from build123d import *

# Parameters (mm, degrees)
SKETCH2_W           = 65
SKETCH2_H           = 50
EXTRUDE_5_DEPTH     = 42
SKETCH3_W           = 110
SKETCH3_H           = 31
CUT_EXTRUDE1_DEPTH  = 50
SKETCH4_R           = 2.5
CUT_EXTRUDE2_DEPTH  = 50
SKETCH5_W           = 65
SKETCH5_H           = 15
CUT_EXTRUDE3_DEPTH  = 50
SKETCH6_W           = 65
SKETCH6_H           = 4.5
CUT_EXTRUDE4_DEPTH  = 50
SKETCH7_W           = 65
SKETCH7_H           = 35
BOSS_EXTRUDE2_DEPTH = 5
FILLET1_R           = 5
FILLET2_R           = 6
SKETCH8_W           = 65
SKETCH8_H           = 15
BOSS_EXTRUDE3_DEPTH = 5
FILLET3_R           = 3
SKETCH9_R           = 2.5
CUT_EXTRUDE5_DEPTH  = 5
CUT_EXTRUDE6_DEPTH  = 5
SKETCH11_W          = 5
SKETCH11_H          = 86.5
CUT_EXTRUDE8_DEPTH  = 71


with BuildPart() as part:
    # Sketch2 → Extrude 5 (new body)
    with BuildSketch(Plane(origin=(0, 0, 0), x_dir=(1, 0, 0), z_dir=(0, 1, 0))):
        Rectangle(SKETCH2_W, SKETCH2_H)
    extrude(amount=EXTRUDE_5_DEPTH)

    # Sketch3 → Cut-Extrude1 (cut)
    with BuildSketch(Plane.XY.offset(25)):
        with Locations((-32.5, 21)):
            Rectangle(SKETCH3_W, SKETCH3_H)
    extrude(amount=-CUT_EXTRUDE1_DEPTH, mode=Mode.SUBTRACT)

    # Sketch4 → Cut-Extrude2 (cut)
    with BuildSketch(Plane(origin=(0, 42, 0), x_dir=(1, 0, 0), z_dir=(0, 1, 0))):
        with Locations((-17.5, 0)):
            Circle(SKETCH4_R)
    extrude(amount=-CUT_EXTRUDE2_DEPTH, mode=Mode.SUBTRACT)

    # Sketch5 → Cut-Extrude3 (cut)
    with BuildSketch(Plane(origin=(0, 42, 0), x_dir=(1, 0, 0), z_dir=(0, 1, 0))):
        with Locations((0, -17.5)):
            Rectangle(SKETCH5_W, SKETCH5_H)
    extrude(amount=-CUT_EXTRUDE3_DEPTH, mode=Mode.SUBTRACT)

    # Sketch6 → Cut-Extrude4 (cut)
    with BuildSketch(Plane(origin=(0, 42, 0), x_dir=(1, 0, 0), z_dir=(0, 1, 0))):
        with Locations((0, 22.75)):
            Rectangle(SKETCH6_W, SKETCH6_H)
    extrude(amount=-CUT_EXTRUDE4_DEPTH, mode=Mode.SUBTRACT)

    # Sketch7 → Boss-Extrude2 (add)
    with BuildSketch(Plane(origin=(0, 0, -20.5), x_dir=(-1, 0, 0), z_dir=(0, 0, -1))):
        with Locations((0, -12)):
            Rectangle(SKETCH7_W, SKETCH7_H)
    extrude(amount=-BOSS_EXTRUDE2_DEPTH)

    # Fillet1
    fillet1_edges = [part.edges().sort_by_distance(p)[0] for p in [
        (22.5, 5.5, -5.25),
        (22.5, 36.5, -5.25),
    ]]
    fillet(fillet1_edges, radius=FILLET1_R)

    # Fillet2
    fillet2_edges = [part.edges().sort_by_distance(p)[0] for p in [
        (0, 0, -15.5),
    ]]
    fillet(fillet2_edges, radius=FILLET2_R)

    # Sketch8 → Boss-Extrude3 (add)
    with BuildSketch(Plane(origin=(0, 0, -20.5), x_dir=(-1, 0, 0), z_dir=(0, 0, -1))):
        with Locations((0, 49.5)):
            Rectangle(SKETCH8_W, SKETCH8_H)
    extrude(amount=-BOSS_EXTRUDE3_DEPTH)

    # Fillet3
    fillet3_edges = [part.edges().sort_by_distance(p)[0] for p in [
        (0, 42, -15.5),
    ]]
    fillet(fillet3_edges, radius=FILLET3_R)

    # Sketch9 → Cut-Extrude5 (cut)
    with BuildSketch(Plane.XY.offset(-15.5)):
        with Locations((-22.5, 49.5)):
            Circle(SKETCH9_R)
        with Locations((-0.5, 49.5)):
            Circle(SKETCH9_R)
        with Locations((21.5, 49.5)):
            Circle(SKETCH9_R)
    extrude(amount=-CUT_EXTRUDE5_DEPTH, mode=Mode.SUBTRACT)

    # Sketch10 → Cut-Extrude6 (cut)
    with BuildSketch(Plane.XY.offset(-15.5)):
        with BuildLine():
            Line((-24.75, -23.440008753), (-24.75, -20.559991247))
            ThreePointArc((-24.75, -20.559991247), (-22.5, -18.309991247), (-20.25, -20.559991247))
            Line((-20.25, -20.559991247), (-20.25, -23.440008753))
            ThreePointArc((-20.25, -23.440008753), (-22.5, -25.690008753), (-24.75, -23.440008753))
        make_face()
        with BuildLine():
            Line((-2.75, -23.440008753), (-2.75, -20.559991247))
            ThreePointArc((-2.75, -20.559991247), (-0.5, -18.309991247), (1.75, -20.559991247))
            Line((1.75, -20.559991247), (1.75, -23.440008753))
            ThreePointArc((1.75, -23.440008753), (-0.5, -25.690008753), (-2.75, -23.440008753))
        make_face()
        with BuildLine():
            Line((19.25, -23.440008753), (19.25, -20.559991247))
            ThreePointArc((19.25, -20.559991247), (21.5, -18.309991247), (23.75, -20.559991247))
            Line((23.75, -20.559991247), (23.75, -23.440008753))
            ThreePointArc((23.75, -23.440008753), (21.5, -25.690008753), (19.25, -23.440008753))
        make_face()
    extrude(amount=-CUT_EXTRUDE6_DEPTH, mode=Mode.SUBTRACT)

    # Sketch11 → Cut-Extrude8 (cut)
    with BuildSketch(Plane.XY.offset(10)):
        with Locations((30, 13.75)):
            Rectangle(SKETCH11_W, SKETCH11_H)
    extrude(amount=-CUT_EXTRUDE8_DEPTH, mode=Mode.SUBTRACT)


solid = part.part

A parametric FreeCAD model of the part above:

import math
import FreeCAD as App
import Part
import Sketcher

V = App.Vector
Q = App.Units.Quantity


def edges_at(feature, points):
    """Names of the edges that pass closest to the given points."""
    edges = feature.Shape.Edges
    near = lambda p: min(range(len(edges)), key=lambda i: edges[i].distToShape(Part.Vertex(*p))[0])
    return sorted({f"Edge{near(p) + 1}" for p in points})


def add_polygon(sketch, points):
    """Adds a closed chain of lines whose ends are joined by coincident constraints."""
    first, n = sketch.GeometryCount, len(points)
    for a, b in zip(points, points[1:] + points[:1]):
        sketch.addGeometry(Part.LineSegment(App.Vector(*a, 0), App.Vector(*b, 0)), False)
    for i in range(n):
        sketch.addConstraint(Sketcher.Constraint("Coincident", first + i, 2, first + (i + 1) % n, 1))

doc = App.newDocument("Part")
body = doc.addObject("PartDesign::Body", "Body")

sketch1 = body.newObject("Sketcher::SketchObject", "Sketch")
sketch1.AttachmentSupport = (doc.getObject("XZ_Plane"), [""])
sketch1.MapMode = "FlatFace"
add_polygon(sketch1, [(-32, -25), (-32, 25), (32, 25), (32, -25)])
sketch1.addConstraint(Sketcher.Constraint("Vertical", 0))
sketch1.addConstraint(Sketcher.Constraint("Horizontal", 1))
sketch1.addConstraint(Sketcher.Constraint("Vertical", 2))
sketch1.addConstraint(Sketcher.Constraint("Horizontal", 3))
sketch1.addConstraint(Sketcher.Constraint("Symmetric", 0, 2, 2, 2, -1, 1))
sketch1.addConstraint(Sketcher.Constraint("DistanceX", 1, 1, 1, 2, Q("65 mm")))
sketch1.addConstraint(Sketcher.Constraint("DistanceY", 0, 1, 0, 2, Q("50 mm")))
pad1 = body.newObject("PartDesign::Pad", "Pad")
pad1.Profile = sketch1
pad1.Length = 42
pad1.Reversed = True

sketch2 = body.newObject("Sketcher::SketchObject", "Sketch001")
sketch2.AttachmentSupport = (doc.getObject("XY_Plane"), [""])
sketch2.MapMode = "FlatFace"
sketch2.AttachmentOffset = App.Placement(V(0, 0, 25), App.Rotation())
add_polygon(sketch2, [(-88, 36), (-88, 6), (22, 6), (22, 36)])
sketch2.addConstraint(Sketcher.Constraint("Vertical", 0))
sketch2.addConstraint(Sketcher.Constraint("Horizontal", 1))
sketch2.addConstraint(Sketcher.Constraint("Vertical", 2))
sketch2.addConstraint(Sketcher.Constraint("Horizontal", 3))
sketch2.addConstraint(Sketcher.Constraint("DistanceX", 1, 1, 1, 2, Q("110 mm")))
sketch2.addConstraint(Sketcher.Constraint("DistanceY", 0, 2, 0, 1, Q("31 mm")))
sketch2.addConstraint(Sketcher.Constraint("DistanceX", 0, 2, -1, 1, Q("87.5 mm")))
sketch2.addConstraint(Sketcher.Constraint("DistanceY", -1, 1, 0, 2, Q("5.5 mm")))
pocket1 = body.newObject("PartDesign::Pocket", "Pocket")
pocket1.Profile = sketch2
pocket1.Length = 50

sketch3 = body.newObject("Sketcher::SketchObject", "Sketch002")
sketch3.AttachmentSupport = (doc.getObject("XZ_Plane"), [""])
sketch3.MapMode = "FlatFace"
sketch3.AttachmentOffset = App.Placement(V(0, 0, -42), App.Rotation())
sketch3.addGeometry(Part.Circle(V(-17.5, 0, 0), V(0, 0, 1), 2.5), False)
sketch3.addConstraint(Sketcher.Constraint("PointOnObject", 0, 3, -1))
sketch3.addConstraint(Sketcher.Constraint("Diameter", 0, Q("5 mm")))
sketch3.addConstraint(Sketcher.Constraint("DistanceX", 0, 3, -1, 1, Q("17.5 mm")))
pocket2 = body.newObject("PartDesign::Pocket", "Pocket001")
pocket2.Profile = sketch3
pocket2.Length = 50
pocket2.Reversed = True

sketch4 = body.newObject("Sketcher::SketchObject", "Sketch003")
sketch4.AttachmentSupport = (doc.getObject("XZ_Plane"), [""])
sketch4.MapMode = "FlatFace"
sketch4.AttachmentOffset = App.Placement(V(0, 0, -42), App.Rotation())
add_polygon(sketch4, [(-32, 10), (-32, 25), (32, 25), (32, 10)])
sketch4.addConstraint(Sketcher.Constraint("Vertical", 0))
sketch4.addConstraint(Sketcher.Constraint("Horizontal", 1))
sketch4.addConstraint(Sketcher.Constraint("Vertical", 2))
sketch4.addConstraint(Sketcher.Constraint("Horizontal", 3))
sketch4.addConstraint(Sketcher.Constraint("DistanceX", 1, 1, 1, 2, Q("65 mm")))
sketch4.addConstraint(Sketcher.Constraint("DistanceY", 0, 1, 0, 2, Q("15 mm")))
sketch4.addConstraint(Sketcher.Constraint("DistanceY", -1, 1, 0, 2, Q("25 mm")))
sketch4.addConstraint(Sketcher.Constraint("DistanceX", 0, 2, -1, 1, Q("32.5 mm")))
pocket3 = body.newObject("PartDesign::Pocket", "Pocket002")
pocket3.Profile = sketch4
pocket3.Length = 50
pocket3.Reversed = True

sketch5 = body.newObject("Sketcher::SketchObject", "Sketch004")
sketch5.AttachmentSupport = (doc.getObject("XZ_Plane"), [""])
sketch5.MapMode = "FlatFace"
sketch5.AttachmentOffset = App.Placement(V(0, 0, -42), App.Rotation())
add_polygon(sketch5, [(-32.5, -25), (-32.5, -20.5), (32.5, -20.5), (32.5, -25)])
sketch5.addConstraint(Sketcher.Constraint("Vertical", 0))
sketch5.addConstraint(Sketcher.Constraint("Horizontal", 1))
sketch5.addConstraint(Sketcher.Constraint("Vertical", 2))
sketch5.addConstraint(Sketcher.Constraint("Horizontal", 3))
sketch5.addConstraint(Sketcher.Constraint("DistanceX", 1, 1, 1, 2, Q("65 mm")))
sketch5.addConstraint(Sketcher.Constraint("DistanceY", 0, 1, 0, 2, Q("4.5 mm")))
sketch5.addConstraint(Sketcher.Constraint("DistanceY", 2, 2, -1, 1, Q("25 mm")))
sketch5.addConstraint(Sketcher.Constraint("DistanceX", 0, 2, -1, 1, Q("32.5 mm")))
pocket4 = body.newObject("PartDesign::Pocket", "Pocket003")
pocket4.Profile = sketch5
pocket4.Length = 50
pocket4.Reversed = True

sketch6 = body.newObject("Sketcher::SketchObject", "Sketch005")
sketch6.AttachmentSupport = (doc.getObject("XY_Plane"), [""])
sketch6.MapMode = "FlatFace"
sketch6.AttachmentOffset = App.Placement(V(0, 0, -20.5), App.Rotation())
add_polygon(sketch6, [(32, 6), (32, -30), (-32, -30), (-32, 6)])
sketch6.addConstraint(Sketcher.Constraint("Vertical", 0))
sketch6.addConstraint(Sketcher.Constraint("Horizontal", 1))
sketch6.addConstraint(Sketcher.Constraint("Vertical", 2))
sketch6.addConstraint(Sketcher.Constraint("Horizontal", 3))
sketch6.addConstraint(Sketcher.Constraint("DistanceX", 1, 2, 1, 1, Q("65 mm")))
sketch6.addConstraint(Sketcher.Constraint("DistanceY", 0, 2, 0, 1, Q("35 mm")))
sketch6.addConstraint(Sketcher.Constraint("DistanceX", -1, 1, 0, 2, Q("32.5 mm")))
sketch6.addConstraint(Sketcher.Constraint("DistanceY", 0, 2, -1, 1, Q("29.5 mm")))
pad2 = body.newObject("PartDesign::Pad", "Pad001")
pad2.Profile = sketch6
pad2.Length = 5
doc.recompute()

fillet = body.newObject("PartDesign::Fillet", "Fillet")
fillet.Base = (pad2, edges_at(pad2, [(22.5, 5.5, -5.25), (22.5, 36.5, -5.25)]))
fillet.Radius = 5
doc.recompute()

fillet2 = body.newObject("PartDesign::Fillet", "Fillet001")
fillet2.Base = (fillet, edges_at(fillet, [(0, 0, -15.5)]))
fillet2.Radius = 6

sketch7 = body.newObject("Sketcher::SketchObject", "Sketch006")
sketch7.AttachmentSupport = (doc.getObject("XY_Plane"), [""])
sketch7.MapMode = "FlatFace"
sketch7.AttachmentOffset = App.Placement(V(0, 0, -20.5), App.Rotation())
add_polygon(sketch7, [(32, 57), (32, 42), (-32, 42), (-32, 57)])
sketch7.addConstraint(Sketcher.Constraint("Vertical", 0))
sketch7.addConstraint(Sketcher.Constraint("Horizontal", 1))
sketch7.addConstraint(Sketcher.Constraint("Vertical", 2))
sketch7.addConstraint(Sketcher.Constraint("Horizontal", 3))
sketch7.addConstraint(Sketcher.Constraint("DistanceX", 1, 2, 1, 1, Q("65 mm")))
sketch7.addConstraint(Sketcher.Constraint("DistanceY", 0, 2, 0, 1, Q("15 mm")))
sketch7.addConstraint(Sketcher.Constraint("DistanceY", -1, 1, 0, 2, Q("42 mm")))
sketch7.addConstraint(Sketcher.Constraint("DistanceX", -1, 1, 0, 2, Q("32.5 mm")))
pad3 = body.newObject("PartDesign::Pad", "Pad002")
pad3.Profile = sketch7
pad3.Length = 5
doc.recompute()

fillet3 = body.newObject("PartDesign::Fillet", "Fillet002")
fillet3.Base = (pad3, edges_at(pad3, [(0, 42, -15.5)]))
fillet3.Radius = 3

sketch8 = body.newObject("Sketcher::SketchObject", "Sketch007")
sketch8.AttachmentSupport = (doc.getObject("XY_Plane"), [""])
sketch8.MapMode = "FlatFace"
sketch8.AttachmentOffset = App.Placement(V(0, 0, -15.5), App.Rotation())
sketch8.addGeometry(Part.Circle(V(-22.5, 49.5, 0), V(0, 0, 1), 2.5), False)
sketch8.addGeometry(Part.Circle(V(-0.5, 49.5, 0), V(0, 0, 1), 2.5), False)
sketch8.addGeometry(Part.Circle(V(21.5, 49.5, 0), V(0, 0, 1), 2.5), False)
sketch8.addConstraint(Sketcher.Constraint("Equal", 0, 1))
sketch8.addConstraint(Sketcher.Constraint("Equal", 1, 2))
sketch8.addConstraint(Sketcher.Constraint("Horizontal", 0, 3, 1, 3))
sketch8.addConstraint(Sketcher.Constraint("Horizontal", 1, 3, 2, 3))
sketch8.addConstraint(Sketcher.Constraint("Diameter", 0, Q("5 mm")))
sketch8.addConstraint(Sketcher.Constraint("DistanceX", 0, 3, 1, 3, Q("22 mm")))
sketch8.addConstraint(Sketcher.Constraint("DistanceX", 1, 3, 2, 3, Q("22 mm")))
sketch8.addConstraint(Sketcher.Constraint("DistanceX", 0, 3, -1, 1, Q("22.5 mm")))
sketch8.addConstraint(Sketcher.Constraint("DistanceY", -1, 1, 0, 3, Q("49.5 mm")))
pocket5 = body.newObject("PartDesign::Pocket", "Pocket004")
pocket5.Profile = sketch8
pocket5.Length = 5

sketch9 = body.newObject("Sketcher::SketchObject", "Sketch008")
sketch9.AttachmentSupport = (doc.getObject("XY_Plane"), [""])
sketch9.MapMode = "FlatFace"
sketch9.AttachmentOffset = App.Placement(V(0, 0, -15.5), App.Rotation())
sketch9.addGeometry(Part.LineSegment(V(-24.8, -20.6, 0), V(-24.8, -23.4, 0)), False)
sketch9.addGeometry(Part.ArcOfCircle(Part.Circle(V(-22.5, -23.4, 0), V(0, 0, 1), 2.2), math.radians(180), math.radians(360)), False)
sketch9.addGeometry(Part.LineSegment(V(-20.2, -23.4, 0), V(-20.2, -20.6, 0)), False)
sketch9.addGeometry(Part.ArcOfCircle(Part.Circle(V(-22.5, -20.6, 0), V(0, 0, 1), 2.2), math.radians(0), math.radians(180)), False)
sketch9.addGeometry(Part.LineSegment(V(-2.8, -20.6, 0), V(-2.8, -23.4, 0)), False)
sketch9.addGeometry(Part.ArcOfCircle(Part.Circle(V(-0.5, -23.4, 0), V(0, 0, 1), 2.2), math.radians(180), math.radians(360)), False)
sketch9.addGeometry(Part.LineSegment(V(1.8, -23.4, 0), V(1.8, -20.6, 0)), False)
sketch9.addGeometry(Part.ArcOfCircle(Part.Circle(V(-0.5, -20.6, 0), V(0, 0, 1), 2.2), math.radians(0), math.radians(180)), False)
sketch9.addGeometry(Part.LineSegment(V(19.2, -20.6, 0), V(19.2, -23.4, 0)), False)
sketch9.addGeometry(Part.ArcOfCircle(Part.Circle(V(21.5, -23.4, 0), V(0, 0, 1), 2.2), math.radians(180), math.radians(360)), False)
sketch9.addGeometry(Part.LineSegment(V(23.8, -23.4, 0), V(23.8, -20.6, 0)), False)
sketch9.addGeometry(Part.ArcOfCircle(Part.Circle(V(21.5, -20.6, 0), V(0, 0, 1), 2.2), math.radians(0), math.radians(180)), False)
sketch9.addConstraint(Sketcher.Constraint("Tangent", 0, 2, 1, 1))
sketch9.addConstraint(Sketcher.Constraint("Tangent", 1, 2, 2, 1))
sketch9.addConstraint(Sketcher.Constraint("Tangent", 2, 2, 3, 1))
sketch9.addConstraint(Sketcher.Constraint("Tangent", 3, 2, 0, 1))
sketch9.addConstraint(Sketcher.Constraint("Tangent", 4, 2, 5, 1))
sketch9.addConstraint(Sketcher.Constraint("Tangent", 5, 2, 6, 1))
sketch9.addConstraint(Sketcher.Constraint("Tangent", 6, 2, 7, 1))
sketch9.addConstraint(Sketcher.Constraint("Tangent", 7, 2, 4, 1))
sketch9.addConstraint(Sketcher.Constraint("Tangent", 8, 2, 9, 1))
sketch9.addConstraint(Sketcher.Constraint("Tangent", 9, 2, 10, 1))
sketch9.addConstraint(Sketcher.Constraint("Tangent", 10, 2, 11, 1))
sketch9.addConstraint(Sketcher.Constraint("Tangent", 11, 2, 8, 1))
sketch9.addConstraint(Sketcher.Constraint("Vertical", 0))
sketch9.addConstraint(Sketcher.Constraint("Vertical", 2))
sketch9.addConstraint(Sketcher.Constraint("Vertical", 4))
sketch9.addConstraint(Sketcher.Constraint("Vertical", 6))
sketch9.addConstraint(Sketcher.Constraint("Vertical", 8))
sketch9.addConstraint(Sketcher.Constraint("Vertical", 10))
sketch9.addConstraint(Sketcher.Constraint("Equal", 3, 5))
sketch9.addConstraint(Sketcher.Constraint("Equal", 7, 9))
sketch9.addConstraint(Sketcher.Constraint("Horizontal", 1, 3, 5, 3))
sketch9.addConstraint(Sketcher.Constraint("Horizontal", 3, 3, 7, 3))
sketch9.addConstraint(Sketcher.Constraint("Horizontal", 5, 3, 9, 3))
sketch9.addConstraint(Sketcher.Constraint("Horizontal", 7, 3, 11, 3))
sketch9.addConstraint(Sketcher.Constraint("Radius", 1, Q("2.25 mm")))
sketch9.addConstraint(Sketcher.Constraint("DistanceX", 1, 3, 5, 3, Q("22 mm")))
sketch9.addConstraint(Sketcher.Constraint("DistanceX", 5, 3, 9, 3, Q("22 mm")))
sketch9.addConstraint(Sketcher.Constraint("DistanceX", 1, 3, -1, 1, Q("22.5 mm")))
sketch9.addConstraint(Sketcher.Constraint("DistanceY", 0, 2, 0, 1, Q("2.880018 mm")))
sketch9.addConstraint(Sketcher.Constraint("DistanceY", 1, 3, -1, 1, Q("23.440009 mm")))
pocket6 = body.newObject("PartDesign::Pocket", "Pocket005")
pocket6.Profile = sketch9
pocket6.Length = 5

sketch10 = body.newObject("Sketcher::SketchObject", "Sketch009")
sketch10.AttachmentSupport = (doc.getObject("XY_Plane"), [""])
sketch10.MapMode = "FlatFace"
sketch10.AttachmentOffset = App.Placement(V(0, 0, 10), App.Rotation())
add_polygon(sketch10, [(28, 57), (28, -30), (32, -30), (32, 57)])
sketch10.addConstraint(Sketcher.Constraint("Vertical", 0))
sketch10.addConstraint(Sketcher.Constraint("Horizontal", 1))
sketch10.addConstraint(Sketcher.Constraint("Vertical", 2))
sketch10.addConstraint(Sketcher.Constraint("Horizontal", 3))
sketch10.addConstraint(Sketcher.Constraint("DistanceX", 1, 1, 1, 2, Q("5 mm")))
sketch10.addConstraint(Sketcher.Constraint("DistanceY", 0, 2, 0, 1, Q("86.5 mm")))
sketch10.addConstraint(Sketcher.Constraint("DistanceY", -1, 1, 2, 2, Q("57 mm")))
sketch10.addConstraint(Sketcher.Constraint("DistanceX", -1, 1, 0, 2, Q("27.5 mm")))
pocket7 = body.newObject("PartDesign::Pocket", "Pocket006")
pocket7.Profile = sketch10
pocket7.Length = 71

doc.recompute()
